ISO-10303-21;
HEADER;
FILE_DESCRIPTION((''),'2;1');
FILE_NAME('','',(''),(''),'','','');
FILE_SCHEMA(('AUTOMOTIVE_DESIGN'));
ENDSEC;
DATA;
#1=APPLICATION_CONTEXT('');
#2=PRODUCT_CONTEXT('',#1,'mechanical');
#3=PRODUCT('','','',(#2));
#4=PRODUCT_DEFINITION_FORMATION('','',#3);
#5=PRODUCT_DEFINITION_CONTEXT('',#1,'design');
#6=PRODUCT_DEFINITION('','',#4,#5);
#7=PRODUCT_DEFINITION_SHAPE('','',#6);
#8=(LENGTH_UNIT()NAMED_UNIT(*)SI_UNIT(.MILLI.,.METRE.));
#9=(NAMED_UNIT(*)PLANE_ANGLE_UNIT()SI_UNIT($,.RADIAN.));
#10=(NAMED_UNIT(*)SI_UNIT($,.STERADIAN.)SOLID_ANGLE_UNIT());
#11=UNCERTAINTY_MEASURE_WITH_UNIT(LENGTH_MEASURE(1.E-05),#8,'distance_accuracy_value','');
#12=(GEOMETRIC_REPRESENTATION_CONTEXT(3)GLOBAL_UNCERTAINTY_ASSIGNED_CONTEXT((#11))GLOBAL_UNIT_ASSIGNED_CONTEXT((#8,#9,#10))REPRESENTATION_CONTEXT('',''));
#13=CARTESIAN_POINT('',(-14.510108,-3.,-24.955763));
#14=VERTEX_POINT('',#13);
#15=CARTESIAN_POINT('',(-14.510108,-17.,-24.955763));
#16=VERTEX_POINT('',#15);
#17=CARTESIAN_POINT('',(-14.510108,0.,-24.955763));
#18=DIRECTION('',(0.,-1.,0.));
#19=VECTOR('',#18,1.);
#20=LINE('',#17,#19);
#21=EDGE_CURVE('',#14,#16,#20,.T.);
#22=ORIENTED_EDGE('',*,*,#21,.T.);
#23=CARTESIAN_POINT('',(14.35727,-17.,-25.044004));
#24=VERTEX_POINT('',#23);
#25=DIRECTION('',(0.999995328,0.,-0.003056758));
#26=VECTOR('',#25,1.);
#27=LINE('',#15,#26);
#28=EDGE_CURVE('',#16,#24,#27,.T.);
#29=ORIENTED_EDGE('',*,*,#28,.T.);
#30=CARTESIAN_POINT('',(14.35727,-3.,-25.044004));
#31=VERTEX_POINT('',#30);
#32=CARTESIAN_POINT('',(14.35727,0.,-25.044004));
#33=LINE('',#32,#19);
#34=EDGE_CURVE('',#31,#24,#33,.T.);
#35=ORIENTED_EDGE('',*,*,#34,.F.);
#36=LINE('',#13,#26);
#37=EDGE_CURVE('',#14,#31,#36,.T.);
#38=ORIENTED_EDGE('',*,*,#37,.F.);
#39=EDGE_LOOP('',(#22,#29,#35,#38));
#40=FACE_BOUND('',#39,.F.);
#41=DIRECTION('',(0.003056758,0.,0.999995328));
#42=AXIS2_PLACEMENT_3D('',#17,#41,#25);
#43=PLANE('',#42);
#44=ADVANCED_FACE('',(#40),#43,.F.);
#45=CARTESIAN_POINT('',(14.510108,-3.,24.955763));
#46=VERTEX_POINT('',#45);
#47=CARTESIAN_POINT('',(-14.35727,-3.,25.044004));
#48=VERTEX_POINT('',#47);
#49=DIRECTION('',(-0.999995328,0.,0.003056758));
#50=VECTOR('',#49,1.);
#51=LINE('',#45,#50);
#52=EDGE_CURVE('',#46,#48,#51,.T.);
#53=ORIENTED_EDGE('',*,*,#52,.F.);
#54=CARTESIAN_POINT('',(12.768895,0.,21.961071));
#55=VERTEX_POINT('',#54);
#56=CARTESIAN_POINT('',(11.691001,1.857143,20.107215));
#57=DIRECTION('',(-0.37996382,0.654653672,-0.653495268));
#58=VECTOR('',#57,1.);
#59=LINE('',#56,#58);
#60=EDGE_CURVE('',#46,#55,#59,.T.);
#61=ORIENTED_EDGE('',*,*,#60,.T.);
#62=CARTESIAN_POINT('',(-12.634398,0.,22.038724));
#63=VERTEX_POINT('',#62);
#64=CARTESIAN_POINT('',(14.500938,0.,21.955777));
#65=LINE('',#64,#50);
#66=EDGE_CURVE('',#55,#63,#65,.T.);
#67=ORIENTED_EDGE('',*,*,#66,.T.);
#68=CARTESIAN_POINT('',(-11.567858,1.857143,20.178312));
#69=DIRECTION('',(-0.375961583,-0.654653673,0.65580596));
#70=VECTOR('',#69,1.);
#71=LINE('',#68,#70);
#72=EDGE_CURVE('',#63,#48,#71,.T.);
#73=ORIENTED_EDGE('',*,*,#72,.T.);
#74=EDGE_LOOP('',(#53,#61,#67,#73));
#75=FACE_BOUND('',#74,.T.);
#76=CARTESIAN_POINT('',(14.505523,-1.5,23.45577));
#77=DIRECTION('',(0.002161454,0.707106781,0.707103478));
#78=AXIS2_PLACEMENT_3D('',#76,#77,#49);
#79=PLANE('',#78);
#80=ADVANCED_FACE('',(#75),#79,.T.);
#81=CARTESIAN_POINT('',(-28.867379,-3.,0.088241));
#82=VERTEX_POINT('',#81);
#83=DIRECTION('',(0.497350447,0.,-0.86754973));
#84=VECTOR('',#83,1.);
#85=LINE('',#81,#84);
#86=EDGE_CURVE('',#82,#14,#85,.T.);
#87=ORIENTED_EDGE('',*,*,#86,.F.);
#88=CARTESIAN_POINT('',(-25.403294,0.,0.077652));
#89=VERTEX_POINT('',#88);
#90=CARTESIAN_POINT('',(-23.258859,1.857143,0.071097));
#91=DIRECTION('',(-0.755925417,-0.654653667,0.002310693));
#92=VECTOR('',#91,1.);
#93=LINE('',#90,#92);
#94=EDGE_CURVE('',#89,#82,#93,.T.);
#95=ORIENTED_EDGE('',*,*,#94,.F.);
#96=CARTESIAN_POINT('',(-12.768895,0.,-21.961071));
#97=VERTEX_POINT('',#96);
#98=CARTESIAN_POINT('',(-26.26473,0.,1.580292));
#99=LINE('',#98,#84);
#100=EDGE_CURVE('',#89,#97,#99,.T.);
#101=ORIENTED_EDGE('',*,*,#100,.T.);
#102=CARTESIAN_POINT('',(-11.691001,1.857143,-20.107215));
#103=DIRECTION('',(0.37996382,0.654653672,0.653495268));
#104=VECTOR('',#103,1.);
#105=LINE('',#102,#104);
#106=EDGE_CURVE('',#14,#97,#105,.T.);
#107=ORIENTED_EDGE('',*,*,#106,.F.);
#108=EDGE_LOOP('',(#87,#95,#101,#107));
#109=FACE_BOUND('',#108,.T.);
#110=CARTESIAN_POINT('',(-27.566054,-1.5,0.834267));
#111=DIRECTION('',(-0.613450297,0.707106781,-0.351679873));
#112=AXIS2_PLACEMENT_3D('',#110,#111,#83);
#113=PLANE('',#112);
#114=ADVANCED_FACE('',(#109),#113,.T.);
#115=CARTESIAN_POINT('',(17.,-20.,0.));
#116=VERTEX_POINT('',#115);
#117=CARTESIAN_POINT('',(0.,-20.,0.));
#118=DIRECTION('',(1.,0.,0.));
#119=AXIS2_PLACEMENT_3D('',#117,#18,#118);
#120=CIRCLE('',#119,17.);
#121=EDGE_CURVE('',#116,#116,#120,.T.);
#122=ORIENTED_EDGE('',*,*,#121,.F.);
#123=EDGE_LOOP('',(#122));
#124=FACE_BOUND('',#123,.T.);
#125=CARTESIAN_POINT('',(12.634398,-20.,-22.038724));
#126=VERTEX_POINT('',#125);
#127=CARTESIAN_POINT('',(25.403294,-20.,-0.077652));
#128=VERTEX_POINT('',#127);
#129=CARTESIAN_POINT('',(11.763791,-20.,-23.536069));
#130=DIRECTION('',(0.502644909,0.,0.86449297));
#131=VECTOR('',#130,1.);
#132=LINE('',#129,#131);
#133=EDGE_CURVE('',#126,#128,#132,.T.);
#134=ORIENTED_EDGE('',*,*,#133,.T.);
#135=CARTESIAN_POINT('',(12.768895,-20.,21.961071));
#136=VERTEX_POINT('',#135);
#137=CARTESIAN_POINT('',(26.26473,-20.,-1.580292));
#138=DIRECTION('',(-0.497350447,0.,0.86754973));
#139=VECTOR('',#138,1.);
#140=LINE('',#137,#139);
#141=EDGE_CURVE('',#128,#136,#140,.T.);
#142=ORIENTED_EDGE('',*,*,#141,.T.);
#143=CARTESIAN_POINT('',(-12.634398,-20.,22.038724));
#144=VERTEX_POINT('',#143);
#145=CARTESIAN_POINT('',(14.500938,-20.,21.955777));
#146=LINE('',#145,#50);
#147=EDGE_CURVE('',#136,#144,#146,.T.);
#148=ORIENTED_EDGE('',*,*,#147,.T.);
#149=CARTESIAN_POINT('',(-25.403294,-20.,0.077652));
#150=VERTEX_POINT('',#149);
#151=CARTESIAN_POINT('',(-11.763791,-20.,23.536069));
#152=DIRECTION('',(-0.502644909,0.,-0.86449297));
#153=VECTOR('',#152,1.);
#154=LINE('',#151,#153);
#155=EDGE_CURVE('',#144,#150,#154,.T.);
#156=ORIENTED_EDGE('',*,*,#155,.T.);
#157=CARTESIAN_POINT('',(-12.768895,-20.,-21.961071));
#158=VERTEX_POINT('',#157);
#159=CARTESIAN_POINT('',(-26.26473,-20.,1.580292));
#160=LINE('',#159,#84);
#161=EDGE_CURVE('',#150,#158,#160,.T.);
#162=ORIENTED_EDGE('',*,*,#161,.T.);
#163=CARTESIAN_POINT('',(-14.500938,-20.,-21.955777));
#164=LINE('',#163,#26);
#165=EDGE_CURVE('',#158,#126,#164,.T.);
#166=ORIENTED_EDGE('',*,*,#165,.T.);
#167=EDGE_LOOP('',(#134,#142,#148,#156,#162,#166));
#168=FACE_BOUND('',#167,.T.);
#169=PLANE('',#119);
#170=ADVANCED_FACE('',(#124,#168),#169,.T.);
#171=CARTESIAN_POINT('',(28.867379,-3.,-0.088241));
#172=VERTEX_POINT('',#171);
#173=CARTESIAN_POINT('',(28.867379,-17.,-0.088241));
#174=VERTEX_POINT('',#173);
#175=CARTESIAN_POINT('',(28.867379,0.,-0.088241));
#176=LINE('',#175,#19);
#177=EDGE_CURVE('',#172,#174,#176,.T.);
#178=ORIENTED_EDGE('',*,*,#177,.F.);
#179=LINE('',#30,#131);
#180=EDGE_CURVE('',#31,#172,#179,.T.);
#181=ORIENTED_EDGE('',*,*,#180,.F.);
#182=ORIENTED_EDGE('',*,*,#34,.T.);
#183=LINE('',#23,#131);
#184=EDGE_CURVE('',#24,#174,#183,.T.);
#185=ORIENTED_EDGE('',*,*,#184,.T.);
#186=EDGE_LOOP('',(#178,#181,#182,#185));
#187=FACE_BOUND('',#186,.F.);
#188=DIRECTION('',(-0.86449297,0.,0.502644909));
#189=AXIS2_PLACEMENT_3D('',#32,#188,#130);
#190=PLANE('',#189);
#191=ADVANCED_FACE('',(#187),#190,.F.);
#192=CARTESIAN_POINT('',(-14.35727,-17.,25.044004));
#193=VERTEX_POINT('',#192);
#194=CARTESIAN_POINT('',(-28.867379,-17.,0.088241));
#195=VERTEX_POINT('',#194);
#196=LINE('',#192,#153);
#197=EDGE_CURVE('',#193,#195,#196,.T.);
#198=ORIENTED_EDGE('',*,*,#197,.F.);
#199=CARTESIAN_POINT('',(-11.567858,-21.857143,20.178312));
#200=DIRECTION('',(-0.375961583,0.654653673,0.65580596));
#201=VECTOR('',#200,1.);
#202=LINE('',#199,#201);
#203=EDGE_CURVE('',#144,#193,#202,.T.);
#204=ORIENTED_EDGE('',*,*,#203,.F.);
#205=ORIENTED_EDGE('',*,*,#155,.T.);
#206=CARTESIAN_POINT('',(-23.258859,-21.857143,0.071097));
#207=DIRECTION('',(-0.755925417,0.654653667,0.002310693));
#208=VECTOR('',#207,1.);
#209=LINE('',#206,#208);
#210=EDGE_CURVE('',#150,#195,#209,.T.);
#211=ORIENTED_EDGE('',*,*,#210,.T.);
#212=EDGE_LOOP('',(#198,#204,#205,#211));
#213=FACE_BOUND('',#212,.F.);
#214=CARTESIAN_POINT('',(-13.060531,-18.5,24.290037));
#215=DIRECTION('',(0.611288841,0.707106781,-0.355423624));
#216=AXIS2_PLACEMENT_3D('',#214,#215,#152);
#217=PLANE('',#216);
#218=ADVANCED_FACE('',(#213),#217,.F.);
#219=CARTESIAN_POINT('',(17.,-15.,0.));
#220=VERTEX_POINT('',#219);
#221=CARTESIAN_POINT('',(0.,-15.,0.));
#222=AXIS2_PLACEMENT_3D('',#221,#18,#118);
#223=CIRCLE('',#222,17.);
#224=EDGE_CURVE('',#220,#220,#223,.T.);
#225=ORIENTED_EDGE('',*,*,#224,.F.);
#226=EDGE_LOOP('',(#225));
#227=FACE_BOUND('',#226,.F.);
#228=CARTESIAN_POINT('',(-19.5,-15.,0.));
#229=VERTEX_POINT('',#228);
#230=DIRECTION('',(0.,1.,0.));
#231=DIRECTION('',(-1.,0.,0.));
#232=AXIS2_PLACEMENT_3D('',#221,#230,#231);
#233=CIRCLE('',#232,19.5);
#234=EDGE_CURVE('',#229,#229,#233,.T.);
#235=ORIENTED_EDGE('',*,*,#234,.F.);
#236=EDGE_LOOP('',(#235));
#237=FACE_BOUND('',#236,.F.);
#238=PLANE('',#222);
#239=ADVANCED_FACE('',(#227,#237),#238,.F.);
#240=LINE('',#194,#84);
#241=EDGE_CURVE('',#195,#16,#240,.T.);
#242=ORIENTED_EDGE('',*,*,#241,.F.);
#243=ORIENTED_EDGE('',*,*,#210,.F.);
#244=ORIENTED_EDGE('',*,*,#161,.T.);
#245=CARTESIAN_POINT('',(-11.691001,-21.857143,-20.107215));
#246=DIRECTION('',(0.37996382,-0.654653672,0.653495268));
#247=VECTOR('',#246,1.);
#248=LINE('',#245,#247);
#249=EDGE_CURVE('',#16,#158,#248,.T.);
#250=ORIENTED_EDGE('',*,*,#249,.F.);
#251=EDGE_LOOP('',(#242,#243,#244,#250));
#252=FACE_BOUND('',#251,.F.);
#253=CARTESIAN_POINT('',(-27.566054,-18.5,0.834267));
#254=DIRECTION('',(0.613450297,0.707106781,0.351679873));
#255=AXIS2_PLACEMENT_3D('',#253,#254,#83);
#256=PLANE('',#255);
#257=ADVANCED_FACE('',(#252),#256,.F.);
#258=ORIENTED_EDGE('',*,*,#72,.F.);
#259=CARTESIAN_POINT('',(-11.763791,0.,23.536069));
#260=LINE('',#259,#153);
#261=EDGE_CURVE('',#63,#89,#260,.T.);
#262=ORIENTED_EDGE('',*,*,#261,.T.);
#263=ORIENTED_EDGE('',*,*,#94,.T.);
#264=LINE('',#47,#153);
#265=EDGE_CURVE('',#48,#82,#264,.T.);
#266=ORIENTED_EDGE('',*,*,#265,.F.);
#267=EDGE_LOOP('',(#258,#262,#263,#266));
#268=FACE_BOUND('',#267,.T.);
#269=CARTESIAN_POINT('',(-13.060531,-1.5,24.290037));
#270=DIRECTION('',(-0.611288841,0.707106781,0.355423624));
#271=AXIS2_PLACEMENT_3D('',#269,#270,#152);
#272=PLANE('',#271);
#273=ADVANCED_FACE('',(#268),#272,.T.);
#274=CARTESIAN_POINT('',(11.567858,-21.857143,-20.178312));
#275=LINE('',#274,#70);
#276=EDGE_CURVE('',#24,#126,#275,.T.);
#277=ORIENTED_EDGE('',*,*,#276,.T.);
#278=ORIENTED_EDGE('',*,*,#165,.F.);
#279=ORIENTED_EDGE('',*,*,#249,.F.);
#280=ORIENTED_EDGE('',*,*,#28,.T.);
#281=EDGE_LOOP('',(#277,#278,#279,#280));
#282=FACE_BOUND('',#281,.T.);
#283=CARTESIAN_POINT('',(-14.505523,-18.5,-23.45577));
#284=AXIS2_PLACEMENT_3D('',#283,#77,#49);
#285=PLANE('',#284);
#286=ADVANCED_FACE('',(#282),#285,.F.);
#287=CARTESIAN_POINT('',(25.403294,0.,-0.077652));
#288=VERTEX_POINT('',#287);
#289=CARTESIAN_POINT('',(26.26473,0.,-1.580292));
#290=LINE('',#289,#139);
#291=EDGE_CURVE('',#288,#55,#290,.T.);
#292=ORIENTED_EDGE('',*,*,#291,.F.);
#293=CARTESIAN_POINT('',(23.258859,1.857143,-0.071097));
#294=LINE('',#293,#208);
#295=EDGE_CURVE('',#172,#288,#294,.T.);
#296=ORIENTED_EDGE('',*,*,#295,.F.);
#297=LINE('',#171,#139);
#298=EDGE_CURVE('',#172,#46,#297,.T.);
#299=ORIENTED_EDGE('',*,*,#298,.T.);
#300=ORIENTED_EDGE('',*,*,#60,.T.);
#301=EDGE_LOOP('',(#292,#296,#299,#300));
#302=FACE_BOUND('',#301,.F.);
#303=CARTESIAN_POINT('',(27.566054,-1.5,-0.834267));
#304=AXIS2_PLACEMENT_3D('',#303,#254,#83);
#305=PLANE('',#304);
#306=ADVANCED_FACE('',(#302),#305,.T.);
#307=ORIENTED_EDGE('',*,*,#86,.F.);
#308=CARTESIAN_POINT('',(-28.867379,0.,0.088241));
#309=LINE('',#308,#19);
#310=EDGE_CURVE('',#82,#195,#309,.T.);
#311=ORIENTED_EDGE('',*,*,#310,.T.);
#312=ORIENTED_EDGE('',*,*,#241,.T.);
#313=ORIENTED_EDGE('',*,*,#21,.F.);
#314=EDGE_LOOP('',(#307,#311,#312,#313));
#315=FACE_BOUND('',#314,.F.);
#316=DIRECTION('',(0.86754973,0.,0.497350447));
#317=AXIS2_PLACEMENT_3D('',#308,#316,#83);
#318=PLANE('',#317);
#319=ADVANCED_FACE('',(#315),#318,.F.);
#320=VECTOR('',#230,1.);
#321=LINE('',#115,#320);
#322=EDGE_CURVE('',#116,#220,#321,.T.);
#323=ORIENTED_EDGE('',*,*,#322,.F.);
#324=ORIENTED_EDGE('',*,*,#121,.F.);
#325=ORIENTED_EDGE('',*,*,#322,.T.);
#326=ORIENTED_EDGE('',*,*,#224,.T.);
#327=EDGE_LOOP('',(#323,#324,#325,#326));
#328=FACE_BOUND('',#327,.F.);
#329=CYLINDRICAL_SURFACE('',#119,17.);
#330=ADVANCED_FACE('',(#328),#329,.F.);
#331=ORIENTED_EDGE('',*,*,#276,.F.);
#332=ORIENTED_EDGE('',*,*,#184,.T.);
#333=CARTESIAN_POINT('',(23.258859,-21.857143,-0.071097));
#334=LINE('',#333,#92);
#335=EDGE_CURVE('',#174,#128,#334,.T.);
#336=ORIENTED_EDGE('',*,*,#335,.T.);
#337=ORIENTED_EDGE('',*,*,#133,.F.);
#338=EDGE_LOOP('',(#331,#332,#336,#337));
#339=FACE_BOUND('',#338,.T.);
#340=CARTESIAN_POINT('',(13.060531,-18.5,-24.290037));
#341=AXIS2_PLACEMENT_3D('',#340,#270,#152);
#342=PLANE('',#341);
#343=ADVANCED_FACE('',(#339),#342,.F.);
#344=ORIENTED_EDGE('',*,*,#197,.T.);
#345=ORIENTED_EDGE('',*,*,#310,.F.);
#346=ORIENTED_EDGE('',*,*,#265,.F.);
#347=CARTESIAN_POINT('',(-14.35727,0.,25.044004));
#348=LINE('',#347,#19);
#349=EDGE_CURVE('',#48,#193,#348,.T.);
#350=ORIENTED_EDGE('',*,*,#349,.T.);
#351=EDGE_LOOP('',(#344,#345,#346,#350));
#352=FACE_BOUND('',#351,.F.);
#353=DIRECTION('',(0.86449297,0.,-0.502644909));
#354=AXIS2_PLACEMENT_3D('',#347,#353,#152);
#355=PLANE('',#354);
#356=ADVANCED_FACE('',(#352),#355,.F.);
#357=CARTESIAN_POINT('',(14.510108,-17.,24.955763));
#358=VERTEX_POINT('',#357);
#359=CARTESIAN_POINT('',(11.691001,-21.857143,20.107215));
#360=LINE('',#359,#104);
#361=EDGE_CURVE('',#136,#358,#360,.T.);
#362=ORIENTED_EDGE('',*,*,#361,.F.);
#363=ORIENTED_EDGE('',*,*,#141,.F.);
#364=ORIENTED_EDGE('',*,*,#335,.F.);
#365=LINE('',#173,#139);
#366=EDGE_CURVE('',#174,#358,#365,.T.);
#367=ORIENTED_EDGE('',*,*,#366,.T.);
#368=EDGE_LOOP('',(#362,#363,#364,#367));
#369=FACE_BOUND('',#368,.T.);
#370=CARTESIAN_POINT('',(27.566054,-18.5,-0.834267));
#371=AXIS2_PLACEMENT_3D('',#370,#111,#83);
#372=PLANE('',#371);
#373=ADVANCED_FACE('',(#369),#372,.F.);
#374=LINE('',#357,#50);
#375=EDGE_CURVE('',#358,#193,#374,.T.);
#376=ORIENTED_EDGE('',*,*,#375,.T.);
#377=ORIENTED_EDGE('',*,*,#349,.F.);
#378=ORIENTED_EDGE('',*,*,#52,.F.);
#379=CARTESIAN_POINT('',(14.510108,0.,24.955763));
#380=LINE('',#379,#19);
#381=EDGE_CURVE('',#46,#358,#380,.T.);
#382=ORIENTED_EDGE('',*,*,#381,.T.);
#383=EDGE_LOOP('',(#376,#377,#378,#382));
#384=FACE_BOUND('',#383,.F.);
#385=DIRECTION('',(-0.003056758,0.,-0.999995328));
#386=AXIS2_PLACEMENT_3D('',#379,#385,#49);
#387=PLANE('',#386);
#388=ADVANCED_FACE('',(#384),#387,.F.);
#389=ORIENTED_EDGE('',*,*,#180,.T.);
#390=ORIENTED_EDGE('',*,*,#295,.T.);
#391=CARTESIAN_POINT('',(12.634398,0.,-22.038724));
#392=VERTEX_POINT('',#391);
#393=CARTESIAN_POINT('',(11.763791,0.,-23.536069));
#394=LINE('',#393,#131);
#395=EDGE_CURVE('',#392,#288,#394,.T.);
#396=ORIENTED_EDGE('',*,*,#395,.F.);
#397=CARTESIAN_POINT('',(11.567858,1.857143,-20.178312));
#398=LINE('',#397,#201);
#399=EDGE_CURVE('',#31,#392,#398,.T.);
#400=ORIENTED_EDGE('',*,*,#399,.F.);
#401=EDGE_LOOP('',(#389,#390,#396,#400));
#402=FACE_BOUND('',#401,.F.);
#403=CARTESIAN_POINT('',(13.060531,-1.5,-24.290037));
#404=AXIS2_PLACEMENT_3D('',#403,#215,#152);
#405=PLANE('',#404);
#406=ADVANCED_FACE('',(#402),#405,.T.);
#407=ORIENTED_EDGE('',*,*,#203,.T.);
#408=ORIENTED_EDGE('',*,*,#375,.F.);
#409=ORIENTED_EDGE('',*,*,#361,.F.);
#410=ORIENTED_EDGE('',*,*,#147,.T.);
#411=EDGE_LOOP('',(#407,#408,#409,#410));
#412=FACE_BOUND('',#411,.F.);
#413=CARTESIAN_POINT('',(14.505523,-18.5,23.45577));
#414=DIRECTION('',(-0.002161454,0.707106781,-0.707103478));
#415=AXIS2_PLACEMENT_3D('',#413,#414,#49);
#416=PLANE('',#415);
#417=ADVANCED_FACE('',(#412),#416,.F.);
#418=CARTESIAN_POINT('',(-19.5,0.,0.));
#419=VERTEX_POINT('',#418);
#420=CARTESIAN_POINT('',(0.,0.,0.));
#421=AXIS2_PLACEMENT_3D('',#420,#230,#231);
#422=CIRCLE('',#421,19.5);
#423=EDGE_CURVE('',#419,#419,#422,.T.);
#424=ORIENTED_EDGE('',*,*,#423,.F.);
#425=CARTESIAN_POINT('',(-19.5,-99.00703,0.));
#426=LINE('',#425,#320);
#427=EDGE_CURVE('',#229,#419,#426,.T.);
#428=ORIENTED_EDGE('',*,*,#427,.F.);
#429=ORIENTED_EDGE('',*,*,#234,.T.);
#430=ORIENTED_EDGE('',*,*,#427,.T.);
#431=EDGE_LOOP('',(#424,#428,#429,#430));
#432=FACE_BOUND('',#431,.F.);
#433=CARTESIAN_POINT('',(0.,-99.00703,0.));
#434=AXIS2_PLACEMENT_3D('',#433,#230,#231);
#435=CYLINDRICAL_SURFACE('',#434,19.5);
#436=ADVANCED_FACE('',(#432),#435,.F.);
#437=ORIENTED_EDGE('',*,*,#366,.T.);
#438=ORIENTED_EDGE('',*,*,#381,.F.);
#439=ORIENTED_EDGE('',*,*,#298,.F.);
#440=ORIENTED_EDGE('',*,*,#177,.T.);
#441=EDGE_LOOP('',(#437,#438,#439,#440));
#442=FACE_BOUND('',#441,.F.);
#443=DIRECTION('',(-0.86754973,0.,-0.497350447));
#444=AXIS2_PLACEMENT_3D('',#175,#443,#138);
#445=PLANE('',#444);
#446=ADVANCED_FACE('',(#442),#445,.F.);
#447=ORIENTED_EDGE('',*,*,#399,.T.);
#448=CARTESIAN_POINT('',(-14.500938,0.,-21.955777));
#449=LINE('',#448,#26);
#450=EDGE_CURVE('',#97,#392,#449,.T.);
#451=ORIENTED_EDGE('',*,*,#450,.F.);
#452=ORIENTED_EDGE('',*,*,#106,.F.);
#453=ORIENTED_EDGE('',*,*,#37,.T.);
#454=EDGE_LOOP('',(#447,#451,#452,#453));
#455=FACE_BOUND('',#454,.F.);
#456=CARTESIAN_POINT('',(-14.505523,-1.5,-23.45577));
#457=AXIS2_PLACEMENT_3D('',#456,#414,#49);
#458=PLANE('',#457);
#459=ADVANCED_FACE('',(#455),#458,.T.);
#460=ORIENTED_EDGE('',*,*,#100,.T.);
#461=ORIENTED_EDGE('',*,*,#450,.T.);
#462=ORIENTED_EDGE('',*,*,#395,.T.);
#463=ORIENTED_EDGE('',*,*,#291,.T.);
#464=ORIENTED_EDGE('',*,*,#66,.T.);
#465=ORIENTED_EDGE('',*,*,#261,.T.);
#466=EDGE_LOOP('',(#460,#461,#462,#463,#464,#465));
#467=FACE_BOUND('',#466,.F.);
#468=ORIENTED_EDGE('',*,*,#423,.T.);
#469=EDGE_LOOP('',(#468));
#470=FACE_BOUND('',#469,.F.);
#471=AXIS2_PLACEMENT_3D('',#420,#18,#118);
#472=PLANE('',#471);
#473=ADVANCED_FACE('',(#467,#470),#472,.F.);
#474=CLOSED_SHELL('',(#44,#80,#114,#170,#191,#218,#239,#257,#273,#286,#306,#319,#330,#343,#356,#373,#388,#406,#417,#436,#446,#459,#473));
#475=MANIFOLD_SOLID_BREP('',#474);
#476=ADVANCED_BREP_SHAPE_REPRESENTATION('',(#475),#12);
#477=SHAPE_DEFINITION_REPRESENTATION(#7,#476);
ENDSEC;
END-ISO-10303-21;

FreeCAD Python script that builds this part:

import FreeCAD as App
import Part
import Sketcher


def edges_at(feature, points):
    """Names of the edges that pass closest to the given points."""
    edges = feature.Shape.Edges
    near = lambda p: min(range(len(edges)), key=lambda i: edges[i].distToShape(Part.Vertex(*p))[0])
    return sorted({f"Edge{near(p) + 1}" for p in points})


def add_polygon(sketch, points):
    """Adds a closed chain of lines whose ends are joined by coincident constraints."""
    first, n = sketch.GeometryCount, len(points)
    for a, b in zip(points, points[1:] + points[:1]):
        sketch.addGeometry(Part.LineSegment(App.Vector(*a, 0), App.Vector(*b, 0)), False)
    for i in range(n):
        sketch.addConstraint(Sketcher.Constraint("Coincident", first + i, 2, first + (i + 1) % n, 1))

doc = App.newDocument("Part")
body = doc.addObject("PartDesign::Body", "Body")

# Sketch on XZ plane
sketch1 = body.newObject("Sketcher::SketchObject", "Sketch")
sketch1.AttachmentSupport = (doc.getObject("XZ_Plane"), [""])
sketch1.MapMode = "FlatFace"
add_polygon(sketch1, [(14, -25), (29, 0), (15, 25), (-14, 25), (-29, 0), (-15, -25)])  # lines 0-5
sketch1.addConstraint([
    Sketcher.Constraint("Symmetric", 0, 2, 3, 2, -1, 1),
    Sketcher.Constraint("Symmetric", 1, 2, 4, 2, -1, 1),
    Sketcher.Constraint("Symmetric", 2, 2, 5, 2, -1, 1),
    Sketcher.Constraint("Equal", 0, 1),
    Sketcher.Constraint("Equal", 1, 2),
    Sketcher.Constraint("DistanceX", -1, 1, 0, 2, 28.867379),
    Sketcher.Constraint("DistanceY", 0, 2, -1, 1, 0.088241),
    Sketcher.Constraint("DistanceX", -1, 1, 1, 2, 14.510108),
    Sketcher.Constraint("DistanceX", 2, 2, -1, 1, 14.35727),
])
pad1 = body.newObject("PartDesign::Pad", "Pad")
pad1.Profile = sketch1
pad1.Length = 20

# Sketch on XZ plane
sketch2 = body.newObject("Sketcher::SketchObject", "Sketch001")
sketch2.AttachmentSupport = (doc.getObject("XZ_Plane"), [""])
sketch2.MapMode = "FlatFace"
sketch2.AttachmentOffset = App.Placement(App.Vector(0, 0, 20), App.Rotation())
sketch2.addGeometry(Part.Circle(App.Vector(0, 0, 0), App.Vector(0, 0, 1), 20), False)
sketch2.addConstraint([
    Sketcher.Constraint("Coincident", 0, 3, -1, 1),
    Sketcher.Constraint("Diameter", 0, 39.0),
])
doc.recompute()
hole = body.newObject("PartDesign::Hole", "Hole")
hole.Profile = sketch2
hole.ThreadType = "None"
hole.Diameter = 39
hole.DepthType = "ThroughAll"
doc.recompute()

chamfer = body.newObject("PartDesign::Chamfer", "Chamfer")
chamfer.Base = (hole, edges_at(hole, [
    (-21.612, -20, 12.566),
    (0.076, -20, 25),
    (21.689, -20, 12.434),
    (21.612, -20, -12.566),
    (-0.076, -20, -25),
    (-21.689, -20, -12.434),
    (21.689, 0, 12.434),
    (21.612, 0, -12.566),
    (-0.076, 0, -25),
    (-21.689, 0, -12.434),
    (-21.612, 0, 12.566),
    (0.076, 0, 25),
]))
chamfer.Size = 3

# Sketch on XZ plane
sketch3 = body.newObject("Sketcher::SketchObject", "Sketch002")
sketch3.AttachmentSupport = (doc.getObject("XZ_Plane"), [""])
sketch3.MapMode = "FlatFace"
sketch3.AttachmentOffset = App.Placement(App.Vector(0, 0, 20), App.Rotation())
sketch3.addGeometry([
    Part.Circle(App.Vector(0, 0, 0), App.Vector(0, 0, 1), 20),
    Part.Circle(App.Vector(0, 0, 0), App.Vector(0, 0, 1), 17),
], False)
sketch3.addConstraint([
    Sketcher.Constraint("Coincident", 0, 3, -1, 1),
    Sketcher.Constraint("Coincident", 1, 3, -1, 1),
    Sketcher.Constraint("Diameter", 0, 39.0),
    Sketcher.Constraint("Diameter", 1, 34.0),
])
pad2 = body.newObject("PartDesign::Pad", "Pad001")
pad2.Profile = sketch3
pad2.Length = 5
pad2.Reversed = True

doc.recompute()
